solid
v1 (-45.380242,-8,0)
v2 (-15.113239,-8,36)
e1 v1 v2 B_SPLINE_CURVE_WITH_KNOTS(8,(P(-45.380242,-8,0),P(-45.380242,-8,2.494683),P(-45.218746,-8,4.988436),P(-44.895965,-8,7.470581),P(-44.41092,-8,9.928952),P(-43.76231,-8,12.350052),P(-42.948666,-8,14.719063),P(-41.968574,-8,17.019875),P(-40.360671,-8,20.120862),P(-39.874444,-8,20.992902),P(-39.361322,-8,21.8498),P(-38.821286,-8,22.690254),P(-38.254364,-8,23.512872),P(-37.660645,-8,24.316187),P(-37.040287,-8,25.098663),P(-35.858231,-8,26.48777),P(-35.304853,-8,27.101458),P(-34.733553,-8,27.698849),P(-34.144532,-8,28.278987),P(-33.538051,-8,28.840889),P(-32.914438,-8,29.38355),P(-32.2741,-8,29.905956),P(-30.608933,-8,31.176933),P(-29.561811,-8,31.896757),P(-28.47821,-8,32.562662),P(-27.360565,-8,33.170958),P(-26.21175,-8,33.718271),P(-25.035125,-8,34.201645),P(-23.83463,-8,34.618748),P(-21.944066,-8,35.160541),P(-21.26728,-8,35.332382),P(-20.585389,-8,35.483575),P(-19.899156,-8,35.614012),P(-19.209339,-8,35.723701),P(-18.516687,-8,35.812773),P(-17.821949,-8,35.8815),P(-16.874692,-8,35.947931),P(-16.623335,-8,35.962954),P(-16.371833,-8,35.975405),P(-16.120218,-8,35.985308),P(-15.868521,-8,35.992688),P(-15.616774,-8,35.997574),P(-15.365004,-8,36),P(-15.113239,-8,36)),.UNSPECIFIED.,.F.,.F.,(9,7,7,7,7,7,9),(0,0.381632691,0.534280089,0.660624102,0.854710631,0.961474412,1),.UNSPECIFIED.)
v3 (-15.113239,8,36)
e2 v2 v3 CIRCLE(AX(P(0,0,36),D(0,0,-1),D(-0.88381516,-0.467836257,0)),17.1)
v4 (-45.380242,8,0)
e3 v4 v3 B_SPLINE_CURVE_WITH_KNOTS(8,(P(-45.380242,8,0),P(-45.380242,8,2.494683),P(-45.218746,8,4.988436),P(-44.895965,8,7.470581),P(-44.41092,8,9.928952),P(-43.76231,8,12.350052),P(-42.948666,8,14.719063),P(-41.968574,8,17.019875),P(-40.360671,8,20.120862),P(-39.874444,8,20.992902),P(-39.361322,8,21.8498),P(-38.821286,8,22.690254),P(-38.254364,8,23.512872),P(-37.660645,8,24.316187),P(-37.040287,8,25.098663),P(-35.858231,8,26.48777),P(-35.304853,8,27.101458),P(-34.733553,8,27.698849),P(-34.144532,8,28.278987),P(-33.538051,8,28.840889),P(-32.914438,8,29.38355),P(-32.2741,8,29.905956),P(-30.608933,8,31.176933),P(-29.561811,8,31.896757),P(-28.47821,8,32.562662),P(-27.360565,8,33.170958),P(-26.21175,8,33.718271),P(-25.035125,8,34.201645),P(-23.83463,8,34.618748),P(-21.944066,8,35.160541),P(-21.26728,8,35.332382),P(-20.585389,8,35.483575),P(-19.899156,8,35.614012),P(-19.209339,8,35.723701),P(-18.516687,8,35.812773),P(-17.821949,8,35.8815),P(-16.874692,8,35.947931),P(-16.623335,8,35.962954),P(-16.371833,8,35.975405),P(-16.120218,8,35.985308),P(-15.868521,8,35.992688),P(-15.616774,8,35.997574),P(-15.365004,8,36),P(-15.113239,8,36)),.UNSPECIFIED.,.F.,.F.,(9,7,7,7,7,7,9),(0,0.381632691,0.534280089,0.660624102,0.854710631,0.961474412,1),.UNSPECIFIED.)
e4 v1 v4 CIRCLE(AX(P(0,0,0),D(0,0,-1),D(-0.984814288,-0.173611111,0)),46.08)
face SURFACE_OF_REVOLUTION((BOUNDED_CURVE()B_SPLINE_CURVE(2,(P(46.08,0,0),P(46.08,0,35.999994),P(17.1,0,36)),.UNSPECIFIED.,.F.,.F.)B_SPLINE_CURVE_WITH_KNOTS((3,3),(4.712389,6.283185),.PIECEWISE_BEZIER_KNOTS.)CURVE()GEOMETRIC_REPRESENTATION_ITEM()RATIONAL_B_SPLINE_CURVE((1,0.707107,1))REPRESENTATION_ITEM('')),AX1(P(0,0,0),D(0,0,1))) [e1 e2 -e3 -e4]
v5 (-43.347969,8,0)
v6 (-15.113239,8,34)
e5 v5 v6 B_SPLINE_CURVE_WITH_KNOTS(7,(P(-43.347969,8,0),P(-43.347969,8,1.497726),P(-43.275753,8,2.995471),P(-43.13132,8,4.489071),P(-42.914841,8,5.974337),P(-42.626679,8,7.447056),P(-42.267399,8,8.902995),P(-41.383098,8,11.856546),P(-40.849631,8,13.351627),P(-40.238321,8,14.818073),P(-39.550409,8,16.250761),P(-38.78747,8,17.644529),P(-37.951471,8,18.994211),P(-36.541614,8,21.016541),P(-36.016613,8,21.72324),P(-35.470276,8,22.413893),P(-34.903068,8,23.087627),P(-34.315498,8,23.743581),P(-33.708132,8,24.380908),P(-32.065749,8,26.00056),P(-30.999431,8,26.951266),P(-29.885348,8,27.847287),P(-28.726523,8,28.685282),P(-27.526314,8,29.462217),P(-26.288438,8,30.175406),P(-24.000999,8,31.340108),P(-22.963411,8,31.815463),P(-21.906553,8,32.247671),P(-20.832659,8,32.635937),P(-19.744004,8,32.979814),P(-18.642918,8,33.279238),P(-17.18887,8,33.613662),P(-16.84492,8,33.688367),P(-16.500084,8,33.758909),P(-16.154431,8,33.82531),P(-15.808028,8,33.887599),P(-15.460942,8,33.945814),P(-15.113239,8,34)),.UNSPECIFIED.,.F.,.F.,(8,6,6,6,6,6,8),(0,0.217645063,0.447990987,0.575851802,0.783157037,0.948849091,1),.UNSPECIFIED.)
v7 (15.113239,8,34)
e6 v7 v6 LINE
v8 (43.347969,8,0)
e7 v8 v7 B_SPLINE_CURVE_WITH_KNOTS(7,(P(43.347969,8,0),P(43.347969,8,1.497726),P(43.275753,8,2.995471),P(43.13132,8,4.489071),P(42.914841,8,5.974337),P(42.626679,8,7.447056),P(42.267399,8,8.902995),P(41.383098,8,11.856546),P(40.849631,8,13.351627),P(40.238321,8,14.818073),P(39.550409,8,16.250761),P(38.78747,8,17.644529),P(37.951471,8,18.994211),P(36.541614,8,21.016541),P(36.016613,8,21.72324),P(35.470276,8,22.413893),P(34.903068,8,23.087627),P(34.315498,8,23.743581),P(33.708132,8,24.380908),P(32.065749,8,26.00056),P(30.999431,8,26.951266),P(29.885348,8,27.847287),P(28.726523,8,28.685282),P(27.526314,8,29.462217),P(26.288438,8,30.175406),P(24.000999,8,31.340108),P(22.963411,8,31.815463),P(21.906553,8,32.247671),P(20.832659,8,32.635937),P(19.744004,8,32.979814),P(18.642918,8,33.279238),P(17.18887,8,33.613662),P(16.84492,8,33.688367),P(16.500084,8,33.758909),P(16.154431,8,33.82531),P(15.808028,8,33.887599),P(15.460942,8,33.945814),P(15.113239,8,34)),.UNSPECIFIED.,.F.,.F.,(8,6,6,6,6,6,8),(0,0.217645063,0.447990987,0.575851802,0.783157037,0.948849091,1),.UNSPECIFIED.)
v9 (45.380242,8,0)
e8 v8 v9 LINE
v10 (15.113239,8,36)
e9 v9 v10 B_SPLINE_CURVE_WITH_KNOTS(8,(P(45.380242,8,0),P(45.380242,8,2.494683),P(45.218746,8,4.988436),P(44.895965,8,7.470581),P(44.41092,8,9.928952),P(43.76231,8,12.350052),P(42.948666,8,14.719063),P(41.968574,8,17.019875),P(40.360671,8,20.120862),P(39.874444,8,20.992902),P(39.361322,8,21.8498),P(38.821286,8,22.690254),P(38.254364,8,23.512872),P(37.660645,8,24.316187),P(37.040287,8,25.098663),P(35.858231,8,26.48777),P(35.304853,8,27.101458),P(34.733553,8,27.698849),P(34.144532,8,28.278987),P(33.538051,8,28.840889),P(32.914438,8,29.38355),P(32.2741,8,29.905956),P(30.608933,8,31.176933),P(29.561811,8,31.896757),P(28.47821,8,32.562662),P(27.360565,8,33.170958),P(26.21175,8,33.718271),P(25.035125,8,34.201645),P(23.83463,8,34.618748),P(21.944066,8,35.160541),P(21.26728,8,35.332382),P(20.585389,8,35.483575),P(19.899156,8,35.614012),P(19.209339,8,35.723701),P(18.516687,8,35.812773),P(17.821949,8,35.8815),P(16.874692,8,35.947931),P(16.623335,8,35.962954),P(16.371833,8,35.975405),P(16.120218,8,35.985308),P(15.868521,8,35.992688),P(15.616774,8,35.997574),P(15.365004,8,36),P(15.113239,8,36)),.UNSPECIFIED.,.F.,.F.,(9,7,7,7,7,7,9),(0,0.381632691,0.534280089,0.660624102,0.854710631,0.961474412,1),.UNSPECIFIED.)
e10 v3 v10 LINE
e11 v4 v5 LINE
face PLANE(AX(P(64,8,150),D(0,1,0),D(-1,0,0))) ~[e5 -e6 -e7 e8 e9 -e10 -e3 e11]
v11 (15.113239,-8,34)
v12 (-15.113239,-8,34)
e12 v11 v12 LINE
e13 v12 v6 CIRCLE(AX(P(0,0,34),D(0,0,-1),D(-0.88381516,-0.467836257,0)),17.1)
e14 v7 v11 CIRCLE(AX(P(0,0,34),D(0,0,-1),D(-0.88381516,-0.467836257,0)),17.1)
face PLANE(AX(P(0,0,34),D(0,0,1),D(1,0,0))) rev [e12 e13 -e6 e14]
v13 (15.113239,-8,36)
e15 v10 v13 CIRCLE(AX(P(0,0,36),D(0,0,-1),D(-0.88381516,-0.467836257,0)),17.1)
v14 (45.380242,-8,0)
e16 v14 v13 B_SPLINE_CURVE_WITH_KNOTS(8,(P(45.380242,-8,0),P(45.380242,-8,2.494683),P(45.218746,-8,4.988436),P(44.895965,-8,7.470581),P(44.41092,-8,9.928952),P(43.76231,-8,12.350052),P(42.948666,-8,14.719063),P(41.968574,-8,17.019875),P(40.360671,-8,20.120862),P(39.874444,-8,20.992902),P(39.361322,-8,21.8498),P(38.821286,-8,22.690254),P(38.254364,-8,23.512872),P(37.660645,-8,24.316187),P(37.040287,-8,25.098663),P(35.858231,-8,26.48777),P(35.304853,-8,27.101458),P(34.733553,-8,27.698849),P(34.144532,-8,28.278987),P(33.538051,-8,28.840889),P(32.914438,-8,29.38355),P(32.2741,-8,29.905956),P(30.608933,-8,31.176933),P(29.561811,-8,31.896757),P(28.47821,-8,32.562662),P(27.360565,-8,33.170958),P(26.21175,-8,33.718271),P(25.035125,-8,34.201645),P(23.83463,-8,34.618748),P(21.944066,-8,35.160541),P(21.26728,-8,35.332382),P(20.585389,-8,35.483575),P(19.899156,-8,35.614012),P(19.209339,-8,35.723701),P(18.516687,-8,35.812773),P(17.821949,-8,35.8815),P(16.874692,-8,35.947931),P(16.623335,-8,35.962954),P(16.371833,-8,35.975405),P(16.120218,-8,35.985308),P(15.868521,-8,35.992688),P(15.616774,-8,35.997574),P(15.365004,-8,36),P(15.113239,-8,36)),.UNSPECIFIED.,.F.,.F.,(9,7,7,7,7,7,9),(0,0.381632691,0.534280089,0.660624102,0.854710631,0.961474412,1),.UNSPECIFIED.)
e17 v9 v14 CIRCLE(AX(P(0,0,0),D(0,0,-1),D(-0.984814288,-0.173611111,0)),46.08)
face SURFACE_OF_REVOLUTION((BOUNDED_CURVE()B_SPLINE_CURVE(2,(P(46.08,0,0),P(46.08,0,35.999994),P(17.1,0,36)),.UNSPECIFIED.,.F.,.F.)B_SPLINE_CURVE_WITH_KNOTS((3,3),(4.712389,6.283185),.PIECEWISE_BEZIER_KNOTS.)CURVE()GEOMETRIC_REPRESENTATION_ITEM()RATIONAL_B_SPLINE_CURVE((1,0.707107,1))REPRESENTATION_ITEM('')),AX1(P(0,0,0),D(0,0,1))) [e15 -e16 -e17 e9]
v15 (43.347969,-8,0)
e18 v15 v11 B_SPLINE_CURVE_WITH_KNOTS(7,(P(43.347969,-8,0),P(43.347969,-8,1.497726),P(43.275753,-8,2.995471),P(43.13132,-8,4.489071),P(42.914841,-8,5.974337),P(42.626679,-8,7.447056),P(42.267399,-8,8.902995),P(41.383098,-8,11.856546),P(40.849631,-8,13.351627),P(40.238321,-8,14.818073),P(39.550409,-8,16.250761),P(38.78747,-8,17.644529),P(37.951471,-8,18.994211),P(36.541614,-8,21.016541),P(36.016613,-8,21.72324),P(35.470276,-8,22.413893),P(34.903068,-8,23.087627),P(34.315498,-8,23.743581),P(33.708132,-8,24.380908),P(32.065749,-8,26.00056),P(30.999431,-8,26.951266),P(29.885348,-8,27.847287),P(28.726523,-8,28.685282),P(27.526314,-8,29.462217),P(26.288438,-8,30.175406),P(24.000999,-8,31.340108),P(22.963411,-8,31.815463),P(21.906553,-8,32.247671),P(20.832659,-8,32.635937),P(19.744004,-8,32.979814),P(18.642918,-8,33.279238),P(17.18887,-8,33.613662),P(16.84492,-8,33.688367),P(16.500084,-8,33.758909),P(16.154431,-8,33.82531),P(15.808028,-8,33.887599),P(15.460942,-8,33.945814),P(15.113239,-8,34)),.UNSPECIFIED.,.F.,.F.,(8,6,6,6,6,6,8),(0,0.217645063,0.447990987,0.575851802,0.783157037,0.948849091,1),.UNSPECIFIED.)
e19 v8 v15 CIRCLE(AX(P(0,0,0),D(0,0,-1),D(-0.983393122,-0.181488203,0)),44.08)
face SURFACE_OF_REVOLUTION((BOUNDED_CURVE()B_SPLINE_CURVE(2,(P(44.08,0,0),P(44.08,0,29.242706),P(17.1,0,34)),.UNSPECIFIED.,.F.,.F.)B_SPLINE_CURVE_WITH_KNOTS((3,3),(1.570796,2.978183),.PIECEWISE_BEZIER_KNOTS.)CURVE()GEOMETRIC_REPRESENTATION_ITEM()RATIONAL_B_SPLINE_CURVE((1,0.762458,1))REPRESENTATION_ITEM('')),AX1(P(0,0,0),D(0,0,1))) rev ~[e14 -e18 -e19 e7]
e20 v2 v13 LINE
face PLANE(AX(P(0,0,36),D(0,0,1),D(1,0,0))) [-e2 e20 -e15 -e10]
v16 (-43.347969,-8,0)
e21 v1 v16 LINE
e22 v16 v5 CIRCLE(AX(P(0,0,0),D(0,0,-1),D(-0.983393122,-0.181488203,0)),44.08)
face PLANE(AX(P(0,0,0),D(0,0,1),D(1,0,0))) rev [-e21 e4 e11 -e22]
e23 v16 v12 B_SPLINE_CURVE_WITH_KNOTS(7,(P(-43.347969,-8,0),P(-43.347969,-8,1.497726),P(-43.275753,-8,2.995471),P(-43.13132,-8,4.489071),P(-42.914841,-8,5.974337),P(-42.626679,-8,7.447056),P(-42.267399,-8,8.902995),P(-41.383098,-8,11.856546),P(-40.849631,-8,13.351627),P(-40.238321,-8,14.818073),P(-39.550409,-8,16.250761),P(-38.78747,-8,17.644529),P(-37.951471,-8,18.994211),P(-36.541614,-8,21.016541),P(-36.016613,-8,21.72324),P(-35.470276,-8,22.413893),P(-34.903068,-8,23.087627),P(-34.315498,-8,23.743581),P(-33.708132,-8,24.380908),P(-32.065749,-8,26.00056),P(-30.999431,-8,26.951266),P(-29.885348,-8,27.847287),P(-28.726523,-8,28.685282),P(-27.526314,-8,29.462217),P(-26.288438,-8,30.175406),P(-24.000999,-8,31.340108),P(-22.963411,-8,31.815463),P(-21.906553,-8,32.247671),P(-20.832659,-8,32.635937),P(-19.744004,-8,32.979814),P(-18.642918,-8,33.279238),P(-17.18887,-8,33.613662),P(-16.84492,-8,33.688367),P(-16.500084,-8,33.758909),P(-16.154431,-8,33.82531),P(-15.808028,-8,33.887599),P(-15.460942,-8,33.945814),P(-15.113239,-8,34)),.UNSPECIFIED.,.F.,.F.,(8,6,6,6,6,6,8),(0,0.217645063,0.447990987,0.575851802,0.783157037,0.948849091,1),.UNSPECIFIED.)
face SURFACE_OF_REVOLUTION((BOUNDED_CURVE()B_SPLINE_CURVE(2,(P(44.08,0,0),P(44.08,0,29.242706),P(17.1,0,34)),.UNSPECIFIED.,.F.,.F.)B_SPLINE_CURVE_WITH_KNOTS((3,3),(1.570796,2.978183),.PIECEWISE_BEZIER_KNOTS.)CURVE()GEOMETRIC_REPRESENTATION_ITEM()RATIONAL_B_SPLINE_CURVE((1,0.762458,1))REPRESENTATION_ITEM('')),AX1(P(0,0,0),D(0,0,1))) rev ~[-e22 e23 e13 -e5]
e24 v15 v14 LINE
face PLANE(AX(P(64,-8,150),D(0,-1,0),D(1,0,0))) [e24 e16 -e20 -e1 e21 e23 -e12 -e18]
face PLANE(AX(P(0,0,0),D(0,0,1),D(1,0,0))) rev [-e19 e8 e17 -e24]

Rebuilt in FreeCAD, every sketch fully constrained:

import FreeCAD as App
import Part
import Sketcher

V = App.Vector
Q = App.Units.Quantity

doc = App.newDocument("Part")
body = doc.addObject("PartDesign::Body", "Body")

# Sketch on XZ plane
sketch1 = body.newObject("Sketcher::SketchObject", "Sketch")
sketch1.AttachmentSupport = (doc.getObject("XZ_Plane"), [""])
sketch1.MapMode = "FlatFace"
sketch1.addGeometry([
    Part.LineSegment(V(0, 36, 0), V(0, 34, 0)),  # 0
    Part.LineSegment(V(0, 34, 0), V(17.1, 34, 0)),  # 1
    Part.BSplineCurve([V(44.08, 0, 0), V(44.08, 29.242706, 0), V(17.1, 34, 0)], [3, 3], [1.570796, 2.978183], False, 2, [1, 0.762458, 1], False),  # 2
    Part.LineSegment(V(44.08, 0, 0), V(46.08, 0, 0)),  # 3
    Part.BSplineCurve([V(46.08, 0, 0), V(46.08, 35.999994, 0), V(17.1, 36, 0)], [3, 3], [4.712389, 6.283185], False, 2, [1, 0.707107, 1], False),  # 4
    Part.LineSegment(V(17.1, 36, 0), V(0, 36, 0)),  # 5
], False)
sketch1.addConstraint([
    Sketcher.Constraint("Block", 2),
    Sketcher.Constraint("Block", 4),
    Sketcher.Constraint("Coincident", 0, 2, 1, 1),
    Sketcher.Constraint("Coincident", 1, 2, 2, 2),
    Sketcher.Constraint("Coincident", 2, 1, 3, 1),
    Sketcher.Constraint("Coincident", 3, 2, 4, 1),
    Sketcher.Constraint("Coincident", 4, 2, 5, 1),
    Sketcher.Constraint("Coincident", 5, 2, 0, 1),
    Sketcher.Constraint("Vertical", 0),
    Sketcher.Constraint("Horizontal", 1),
    Sketcher.Constraint("Horizontal", 5),
    Sketcher.Constraint("PointOnObject", 0, 2, -2),
])
revolution = body.newObject("PartDesign::Revolution", "Revolution")
revolution.Profile = sketch1
revolution.ReferenceAxis = (sketch1, ["V_Axis"])
revolution.Angle = 360

# Sketch on XZ plane
sketch2 = body.newObject("Sketcher::SketchObject", "Sketch001")
sketch2.AttachmentSupport = (doc.getObject("XZ_Plane"), [""])
sketch2.MapMode = "FlatFace"
sketch2.AttachmentOffset = App.Placement(V(0, 0, 8), App.Rotation())
sketch2.addGeometry([
    Part.LineSegment(V(-86, 300, 0), V(-86, 0, 0)),
    Part.LineSegment(V(-86, 0, 0), V(214, 0, 0)),
    Part.LineSegment(V(214, 0, 0), V(214, 300, 0)),
    Part.LineSegment(V(214, 300, 0), V(-86, 300, 0)),
], False)
sketch2.addConstraint([
    Sketcher.Constraint("Coincident", 0, 2, 1, 1),
    Sketcher.Constraint("Coincident", 1, 2, 2, 1),
    Sketcher.Constraint("Coincident", 2, 2, 3, 1),
    Sketcher.Constraint("Coincident", 3, 2, 0, 1),
    Sketcher.Constraint("Vertical", 0),
    Sketcher.Constraint("Horizontal", 1),
    Sketcher.Constraint("Vertical", 2),
    Sketcher.Constraint("Horizontal", 3),
    Sketcher.Constraint("PointOnObject", 0, 2, -1),
    Sketcher.Constraint("Equal", 3, 0),
    Sketcher.Constraint("DistanceX", 1, 1, 1, 2, Q("300 mm")),
    Sketcher.Constraint("DistanceX", 0, 2, -1, 1, Q("86 mm")),
])
pocket1 = body.newObject("PartDesign::Pocket", "Pocket")
pocket1.Profile = sketch2
pocket1.Length = 300
pocket1.Reversed = True
doc.recompute()

mirrored = body.newObject("PartDesign::Mirrored", "Mirrored")
mirrored.Originals = [pocket1]
mirrored.MirrorPlane = (doc.getObject("XZ_Plane"), [""])
body.Tip = mirrored

doc.recompute()
